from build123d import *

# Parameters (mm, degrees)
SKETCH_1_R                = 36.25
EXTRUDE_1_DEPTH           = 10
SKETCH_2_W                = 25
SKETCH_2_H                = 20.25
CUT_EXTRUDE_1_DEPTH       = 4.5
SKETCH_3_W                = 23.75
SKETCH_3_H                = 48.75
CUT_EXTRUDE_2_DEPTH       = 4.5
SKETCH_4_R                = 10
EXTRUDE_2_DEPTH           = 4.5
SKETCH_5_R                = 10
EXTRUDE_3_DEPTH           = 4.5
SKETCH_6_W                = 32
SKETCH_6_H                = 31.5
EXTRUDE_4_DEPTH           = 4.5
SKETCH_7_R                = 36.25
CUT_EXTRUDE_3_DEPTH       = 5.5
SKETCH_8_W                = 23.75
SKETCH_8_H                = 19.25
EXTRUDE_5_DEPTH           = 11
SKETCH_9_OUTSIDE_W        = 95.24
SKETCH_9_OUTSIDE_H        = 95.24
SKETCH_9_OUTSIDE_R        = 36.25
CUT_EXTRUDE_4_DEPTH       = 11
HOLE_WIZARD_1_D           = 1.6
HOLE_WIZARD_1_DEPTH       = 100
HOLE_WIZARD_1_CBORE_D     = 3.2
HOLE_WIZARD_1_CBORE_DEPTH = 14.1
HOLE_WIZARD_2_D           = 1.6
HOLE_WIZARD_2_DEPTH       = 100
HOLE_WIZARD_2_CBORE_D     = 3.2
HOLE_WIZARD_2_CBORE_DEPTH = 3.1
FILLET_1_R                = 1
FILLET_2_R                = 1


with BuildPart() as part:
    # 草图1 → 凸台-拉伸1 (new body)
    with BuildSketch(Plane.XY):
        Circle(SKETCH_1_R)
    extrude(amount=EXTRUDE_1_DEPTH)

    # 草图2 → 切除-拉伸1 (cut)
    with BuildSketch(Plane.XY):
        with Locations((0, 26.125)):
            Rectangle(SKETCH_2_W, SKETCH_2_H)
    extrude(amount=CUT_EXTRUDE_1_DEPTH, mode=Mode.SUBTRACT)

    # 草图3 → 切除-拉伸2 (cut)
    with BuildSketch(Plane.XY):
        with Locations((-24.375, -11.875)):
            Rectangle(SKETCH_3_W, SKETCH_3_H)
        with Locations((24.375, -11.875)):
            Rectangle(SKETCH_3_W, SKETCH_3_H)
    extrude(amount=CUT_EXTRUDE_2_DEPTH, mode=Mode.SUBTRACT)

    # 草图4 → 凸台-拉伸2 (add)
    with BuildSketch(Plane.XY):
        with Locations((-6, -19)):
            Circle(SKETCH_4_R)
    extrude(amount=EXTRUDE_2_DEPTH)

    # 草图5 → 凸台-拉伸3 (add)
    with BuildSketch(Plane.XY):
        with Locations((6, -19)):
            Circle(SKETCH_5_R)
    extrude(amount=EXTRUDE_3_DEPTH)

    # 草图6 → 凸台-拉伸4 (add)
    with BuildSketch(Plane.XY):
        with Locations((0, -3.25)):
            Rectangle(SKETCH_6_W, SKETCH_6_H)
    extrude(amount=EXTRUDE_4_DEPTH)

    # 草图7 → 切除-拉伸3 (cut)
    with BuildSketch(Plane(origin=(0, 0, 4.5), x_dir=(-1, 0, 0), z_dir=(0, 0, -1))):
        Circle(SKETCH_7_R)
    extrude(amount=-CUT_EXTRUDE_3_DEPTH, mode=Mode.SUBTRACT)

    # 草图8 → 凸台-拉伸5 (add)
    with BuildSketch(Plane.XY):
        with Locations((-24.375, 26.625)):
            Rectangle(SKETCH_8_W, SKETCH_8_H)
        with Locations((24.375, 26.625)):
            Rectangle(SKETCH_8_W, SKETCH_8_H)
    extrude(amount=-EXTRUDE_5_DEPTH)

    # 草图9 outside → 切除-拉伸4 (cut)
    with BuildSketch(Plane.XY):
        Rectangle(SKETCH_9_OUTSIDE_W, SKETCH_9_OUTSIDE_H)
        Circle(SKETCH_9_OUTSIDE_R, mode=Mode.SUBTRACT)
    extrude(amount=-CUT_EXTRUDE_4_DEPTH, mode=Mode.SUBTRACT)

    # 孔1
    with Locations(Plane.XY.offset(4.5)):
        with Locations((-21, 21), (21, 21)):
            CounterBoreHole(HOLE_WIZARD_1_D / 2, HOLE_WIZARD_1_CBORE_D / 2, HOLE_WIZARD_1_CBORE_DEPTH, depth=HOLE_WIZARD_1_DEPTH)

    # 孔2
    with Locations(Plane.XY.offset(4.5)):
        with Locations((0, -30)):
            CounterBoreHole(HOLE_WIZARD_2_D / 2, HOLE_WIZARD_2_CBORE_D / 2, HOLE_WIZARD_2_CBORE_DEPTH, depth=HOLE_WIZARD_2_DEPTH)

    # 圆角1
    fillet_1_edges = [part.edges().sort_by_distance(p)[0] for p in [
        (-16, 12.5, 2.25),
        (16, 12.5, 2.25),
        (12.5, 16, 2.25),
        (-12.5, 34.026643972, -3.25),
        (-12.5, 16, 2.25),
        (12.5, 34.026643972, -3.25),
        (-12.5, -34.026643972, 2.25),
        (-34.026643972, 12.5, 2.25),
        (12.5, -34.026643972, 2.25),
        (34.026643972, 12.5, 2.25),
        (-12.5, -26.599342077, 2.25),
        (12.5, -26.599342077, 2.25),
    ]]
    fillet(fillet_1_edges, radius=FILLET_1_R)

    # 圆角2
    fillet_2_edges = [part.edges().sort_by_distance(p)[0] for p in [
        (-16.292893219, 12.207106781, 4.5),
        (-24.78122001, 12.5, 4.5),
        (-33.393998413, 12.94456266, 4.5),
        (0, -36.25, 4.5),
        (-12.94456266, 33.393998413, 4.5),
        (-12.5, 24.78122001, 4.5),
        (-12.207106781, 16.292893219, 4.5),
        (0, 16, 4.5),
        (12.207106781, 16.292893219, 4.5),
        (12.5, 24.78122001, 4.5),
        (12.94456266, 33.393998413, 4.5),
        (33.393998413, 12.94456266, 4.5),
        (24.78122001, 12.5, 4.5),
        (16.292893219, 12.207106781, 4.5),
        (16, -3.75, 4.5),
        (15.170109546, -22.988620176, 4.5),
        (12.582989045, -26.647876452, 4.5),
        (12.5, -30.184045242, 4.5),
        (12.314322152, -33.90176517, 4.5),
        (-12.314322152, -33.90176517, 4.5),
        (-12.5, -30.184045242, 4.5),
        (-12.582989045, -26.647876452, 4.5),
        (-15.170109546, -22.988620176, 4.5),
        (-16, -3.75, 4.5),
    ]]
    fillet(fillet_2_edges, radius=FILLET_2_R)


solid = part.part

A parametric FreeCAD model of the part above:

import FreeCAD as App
import Part
import Sketcher
from FreeCAD import Vector
Q = App.Units.Quantity


def edges_at(feature, points):
    """Names of the edges that pass closest to the given points."""
    edges = feature.Shape.Edges
    near = lambda p: min(range(len(edges)), key=lambda i: edges[i].distToShape(Part.Vertex(*p))[0])
    return sorted({f"Edge{near(p) + 1}" for p in points})


def add_polygon(sketch, points):
    """Adds a closed chain of lines whose ends are joined by coincident constraints."""
    first, n = sketch.GeometryCount, len(points)
    for a, b in zip(points, points[1:] + points[:1]):
        sketch.addGeometry(Part.LineSegment(App.Vector(*a, 0), App.Vector(*b, 0)), False)
    for i in range(n):
        sketch.addConstraint(Sketcher.Constraint("Coincident", first + i, 2, first + (i + 1) % n, 1))

doc = App.newDocument("Part")
body = doc.addObject("PartDesign::Body", "Body")

# Sketch on XY plane
sketch1 = body.newObject("Sketcher::SketchObject", "Sketch")
sketch1.AttachmentSupport = (doc.getObject("XY_Plane"), [""])
sketch1.MapMode = "FlatFace"
sketch1.addGeometry(Part.Circle(Vector(0, 0, 0), Vector(0, 0, 1), 36.25), False)
sketch1.addConstraint([
    Sketcher.Constraint("Coincident", 0, 3, -1, 1),
    Sketcher.Constraint("Diameter", 0, Q("72.5 mm")),
])
pad1 = body.newObject("PartDesign::Pad", "Pad")
pad1.Profile = sketch1
pad1.Length = 10

# Sketch on XY plane
sketch2 = body.newObject("Sketcher::SketchObject", "Sketch001")
sketch2.AttachmentSupport = (doc.getObject("XY_Plane"), [""])
sketch2.MapMode = "FlatFace"
add_polygon(sketch2, [(-12.5, 36.25), (-12.5, 16), (12.5, 16), (12.5, 36.25)])  # lines 0-3
sketch2.addConstraint([
    Sketcher.Constraint("Vertical", 0),
    Sketcher.Constraint("Horizontal", 1),
    Sketcher.Constraint("Vertical", 2),
    Sketcher.Constraint("Horizontal", 3),
    Sketcher.Constraint("DistanceX", 1, 1, 1, 2, Q("25 mm")),
    Sketcher.Constraint("DistanceY", -1, 1, 0, 2, Q("16 mm")),
    Sketcher.Constraint("DistanceY", 0, 2, 0, 1, Q("20.25 mm")),
    Sketcher.Constraint("DistanceX", 0, 2, -1, 1, Q("12.5 mm")),
])
pocket1 = body.newObject("PartDesign::Pocket", "Pocket")
pocket1.Profile = sketch2
pocket1.Length = 4.5
pocket1.Reversed = True

# Sketch on XY plane
sketch3 = body.newObject("Sketcher::SketchObject", "Sketch002")
sketch3.AttachmentSupport = (doc.getObject("XY_Plane"), [""])
sketch3.MapMode = "FlatFace"
add_polygon(sketch3, [(-36.25, 12.5), (-36.25, -36.25), (-12.5, -36.25), (-12.5, 12.5)])  # lines 0-3
add_polygon(sketch3, [(12.5, 12.5), (12.5, -36.25), (36.25, -36.25), (36.25, 12.5)])  # lines 4-7
sketch3.addConstraint([
    Sketcher.Constraint("Vertical", 0),
    Sketcher.Constraint("Horizontal", 1),
    Sketcher.Constraint("Vertical", 2),
    Sketcher.Constraint("Horizontal", 3),
    Sketcher.Constraint("Vertical", 4),
    Sketcher.Constraint("Horizontal", 5),
    Sketcher.Constraint("Vertical", 6),
    Sketcher.Constraint("Horizontal", 7),
    Sketcher.Constraint("Symmetric", 1, 2, 4, 2, -2),
    Sketcher.Constraint("Symmetric", 3, 2, 6, 2, -2),
    Sketcher.Constraint("DistanceX", 1, 2, 4, 2, Q("25 mm")),
    Sketcher.Constraint("DistanceX", 1, 1, 1, 2, Q("23.75 mm")),
    Sketcher.Constraint("DistanceY", 0, 2, 0, 1, Q("48.75 mm")),
    Sketcher.Constraint("DistanceY", -1, 1, 2, 2, Q("12.5 mm")),
])
pocket2 = body.newObject("PartDesign::Pocket", "Pocket001")
pocket2.Profile = sketch3
pocket2.Length = 4.5
pocket2.Reversed = True

# Sketch on XY plane
sketch4 = body.newObject("Sketcher::SketchObject", "Sketch003")
sketch4.AttachmentSupport = (doc.getObject("XY_Plane"), [""])
sketch4.MapMode = "FlatFace"
sketch4.addGeometry(Part.Circle(Vector(-6, -19, 0), Vector(0, 0, 1), 10), False)
sketch4.addConstraint([
    Sketcher.Constraint("Diameter", 0, Q("20 mm")),
    Sketcher.Constraint("DistanceX", 0, 3, -1, 1, Q("6 mm")),
    Sketcher.Constraint("DistanceY", 0, 3, -1, 1, Q("19 mm")),
])
pad2 = body.newObject("PartDesign::Pad", "Pad001")
pad2.Profile = sketch4
pad2.Length = 4.5

# Sketch on XY plane
sketch5 = body.newObject("Sketcher::SketchObject", "Sketch004")
sketch5.AttachmentSupport = (doc.getObject("XY_Plane"), [""])
sketch5.MapMode = "FlatFace"
sketch5.addGeometry(Part.Circle(Vector(6, -19, 0), Vector(0, 0, 1), 10), False)
sketch5.addConstraint([
    Sketcher.Constraint("Diameter", 0, Q("20 mm")),
    Sketcher.Constraint("DistanceX", -1, 1, 0, 3, Q("6 mm")),
    Sketcher.Constraint("DistanceY", 0, 3, -1, 1, Q("19 mm")),
])
pad3 = body.newObject("PartDesign::Pad", "Pad002")
pad3.Profile = sketch5
pad3.Length = 4.5

# Sketch on XY plane
sketch6 = body.newObject("Sketcher::SketchObject", "Sketch005")
sketch6.AttachmentSupport = (doc.getObject("XY_Plane"), [""])
sketch6.MapMode = "FlatFace"
add_polygon(sketch6, [(-16, 12.5), (-16, -19), (16, -19), (16, 12.5)])  # lines 0-3
sketch6.addConstraint([
    Sketcher.Constraint("Vertical", 0),
    Sketcher.Constraint("Horizontal", 1),
    Sketcher.Constraint("Vertical", 2),
    Sketcher.Constraint("Horizontal", 3),
    Sketcher.Constraint("DistanceX", 1, 1, 1, 2, Q("32 mm")),
    Sketcher.Constraint("DistanceY", 0, 2, 0, 1, Q("31.5 mm")),
    Sketcher.Constraint("DistanceX", 0, 2, -1, 1, Q("16 mm")),
    Sketcher.Constraint("DistanceY", 0, 2, -1, 1, Q("19 mm")),
])
pad4 = body.newObject("PartDesign::Pad", "Pad003")
pad4.Profile = sketch6
pad4.Length = 4.5

# Sketch on XY plane
sketch7 = body.newObject("Sketcher::SketchObject", "Sketch006")
sketch7.AttachmentSupport = (doc.getObject("XY_Plane"), [""])
sketch7.MapMode = "FlatFace"
sketch7.AttachmentOffset = App.Placement(Vector(0, 0, 4.5), App.Rotation())
sketch7.addGeometry(Part.Circle(Vector(0, 0, 0), Vector(0, 0, 1), 36.25), False)
sketch7.addConstraint([
    Sketcher.Constraint("Coincident", 0, 3, -1, 1),
    Sketcher.Constraint("Diameter", 0, Q("72.5 mm")),
])
pocket3 = body.newObject("PartDesign::Pocket", "Pocket002")
pocket3.Profile = sketch7
pocket3.Length = 5.5
pocket3.Reversed = True

# Sketch on XY plane
sketch8 = body.newObject("Sketcher::SketchObject", "Sketch007")
sketch8.AttachmentSupport = (doc.getObject("XY_Plane"), [""])
sketch8.MapMode = "FlatFace"
add_polygon(sketch8, [(-36.25, 36.25), (-36.25, 17), (-12.5, 17), (-12.5, 36.25)])  # lines 0-3
add_polygon(sketch8, [(12.5, 36.25), (12.5, 17), (36.25, 17), (36.25, 36.25)])  # lines 4-7
sketch8.addConstraint([
    Sketcher.Constraint("Vertical", 0),
    Sketcher.Constraint("Horizontal", 1),
    Sketcher.Constraint("Vertical", 2),
    Sketcher.Constraint("Horizontal", 3),
    Sketcher.Constraint("Vertical", 4),
    Sketcher.Constraint("Horizontal", 5),
    Sketcher.Constraint("Vertical", 6),
    Sketcher.Constraint("Horizontal", 7),
    Sketcher.Constraint("Symmetric", 1, 2, 4, 2, -2),
    Sketcher.Constraint("Symmetric", 3, 2, 6, 2, -2),
    Sketcher.Constraint("DistanceY", -1, 1, 0, 2, Q("17 mm")),
    Sketcher.Constraint("DistanceX", 1, 2, 4, 2, Q("25 mm")),
    Sketcher.Constraint("DistanceX", 1, 1, 1, 2, Q("23.75 mm")),
    Sketcher.Constraint("DistanceY", 0, 2, 0, 1, Q("19.25 mm")),
])
pad5 = body.newObject("PartDesign::Pad", "Pad004")
pad5.Profile = sketch8
pad5.Length = 11
pad5.Reversed = True

# Sketch on XY plane
sketch9 = body.newObject("Sketcher::SketchObject", "Sketch008")
sketch9.AttachmentSupport = (doc.getObject("XY_Plane"), [""])
sketch9.MapMode = "FlatFace"
add_polygon(sketch9, [(-47.62, 47.62), (-47.62, -47.62), (47.62, -47.62), (47.62, 47.62)])  # lines 0-3
sketch9.addGeometry(Part.Circle(Vector(0, 0, 0), Vector(0, 0, 1), 36.25), False)  # 4
sketch9.addConstraint([
    Sketcher.Constraint("Vertical", 0),
    Sketcher.Constraint("Horizontal", 1),
    Sketcher.Constraint("Vertical", 2),
    Sketcher.Constraint("Horizontal", 3),
    Sketcher.Constraint("Coincident", 4, 3, -1, 1),
    Sketcher.Constraint("Symmetric", 0, 2, 2, 2, -1, 1),
    Sketcher.Constraint("Equal", 3, 0),
    Sketcher.Constraint("Diameter", 4, Q("72.5 mm")),
    Sketcher.Constraint("DistanceX", 1, 1, 1, 2, Q("95.24 mm")),
])
pocket4 = body.newObject("PartDesign::Pocket", "Pocket003")
pocket4.Profile = sketch9
pocket4.Length = 11

# Sketch on XY plane
sketch10 = body.newObject("Sketcher::SketchObject", "Sketch009")
sketch10.AttachmentSupport = (doc.getObject("XY_Plane"), [""])
sketch10.MapMode = "FlatFace"
sketch10.AttachmentOffset = App.Placement(Vector(0, 0, 4.5), App.Rotation())
sketch10.addGeometry([
    Part.Circle(Vector(-21, 21, 0), Vector(0, 0, 1), 0.8),
    Part.Circle(Vector(21, 21, 0), Vector(0, 0, 1), 0.8),
], False)
sketch10.addConstraint([
    Sketcher.Constraint("Equal", 0, 1),
    Sketcher.Constraint("Symmetric", 0, 3, 1, 3, -2),
    Sketcher.Constraint("Diameter", 0, Q("1.6 mm")),
    Sketcher.Constraint("DistanceX", 0, 3, -1, 1, Q("21 mm")),
    Sketcher.Constraint("DistanceY", -1, 1, 0, 3, Q("21 mm")),
])
doc.recompute()
hole = body.newObject("PartDesign::Hole", "Hole")
hole.Profile = sketch10
hole.ThreadType = "None"
hole.Diameter = 1.6
hole.DepthType = "Dimension"
hole.Depth = 100
hole.DrillPoint = "Flat"
hole.HoleCutType = "Counterbore"
hole.HoleCutDiameter = 3.2
hole.HoleCutDepth = 14.1

# Sketch on XY plane
sketch11 = body.newObject("Sketcher::SketchObject", "Sketch010")
sketch11.AttachmentSupport = (doc.getObject("XY_Plane"), [""])
sketch11.MapMode = "FlatFace"
sketch11.AttachmentOffset = App.Placement(Vector(0, 0, 4.5), App.Rotation())
sketch11.addGeometry(Part.Circle(Vector(0, -30, 0), Vector(0, 0, 1), 0.8), False)
sketch11.addConstraint([
    Sketcher.Constraint("PointOnObject", 0, 3, -2),
    Sketcher.Constraint("Diameter", 0, Q("1.6 mm")),
    Sketcher.Constraint("DistanceY", 0, 3, -1, 1, Q("30 mm")),
])
doc.recompute()
hole2 = body.newObject("PartDesign::Hole", "Hole001")
hole2.Profile = sketch11
hole2.ThreadType = "None"
hole2.Diameter = 1.6
hole2.DepthType = "Dimension"
hole2.Depth = 100
hole2.DrillPoint = "Flat"
hole2.HoleCutType = "Counterbore"
hole2.HoleCutDiameter = 3.2
hole2.HoleCutDepth = 3.1
doc.recompute()

fillet = body.newObject("PartDesign::Fillet", "Fillet")
fillet.Base = (hole2, edges_at(hole2, [
    (-16, 12.5, 2.25),
    (16, 12.5, 2.25),
    (12.5, 16, 2.25),
    (-12.5, 34.027, -3.25),
    (-12.5, 16, 2.25),
    (12.5, 34.027, -3.25),
    (-12.5, -34.027, 2.25),
    (-34.027, 12.5, 2.25),
    (12.5, -34.027, 2.25),
    (34.027, 12.5, 2.25),
    (-12.5, -26.599, 2.25),
    (12.5, -26.599, 2.25),
]))
fillet.Radius = 1
doc.recompute()

fillet2 = body.newObject("PartDesign::Fillet", "Fillet001")
fillet2.Base = (fillet, edges_at(fillet, [
    (-16.293, 12.207, 4.5),
    (-24.781, 12.5, 4.5),
    (-33.394, 12.945, 4.5),
    (0, -36.25, 4.5),
    (-12.945, 33.394, 4.5),
    (-12.5, 24.781, 4.5),
    (-12.207, 16.293, 4.5),
    (0, 16, 4.5),
    (12.207, 16.293, 4.5),
    (12.5, 24.781, 4.5),
    (12.945, 33.394, 4.5),
    (33.394, 12.945, 4.5),
    (24.781, 12.5, 4.5),
    (16.293, 12.207, 4.5),
    (16, -3.75, 4.5),
    (15.17, -22.989, 4.5),
    (12.583, -26.648, 4.5),
    (12.5, -30.184, 4.5),
    (12.314, -33.902, 4.5),
    (-12.314, -33.902, 4.5),
    (-12.5, -30.184, 4.5),
    (-12.583, -26.648, 4.5),
    (-15.17, -22.989, 4.5),
    (-16, -3.75, 4.5),
]))
fillet2.Radius = 1

doc.recompute()
